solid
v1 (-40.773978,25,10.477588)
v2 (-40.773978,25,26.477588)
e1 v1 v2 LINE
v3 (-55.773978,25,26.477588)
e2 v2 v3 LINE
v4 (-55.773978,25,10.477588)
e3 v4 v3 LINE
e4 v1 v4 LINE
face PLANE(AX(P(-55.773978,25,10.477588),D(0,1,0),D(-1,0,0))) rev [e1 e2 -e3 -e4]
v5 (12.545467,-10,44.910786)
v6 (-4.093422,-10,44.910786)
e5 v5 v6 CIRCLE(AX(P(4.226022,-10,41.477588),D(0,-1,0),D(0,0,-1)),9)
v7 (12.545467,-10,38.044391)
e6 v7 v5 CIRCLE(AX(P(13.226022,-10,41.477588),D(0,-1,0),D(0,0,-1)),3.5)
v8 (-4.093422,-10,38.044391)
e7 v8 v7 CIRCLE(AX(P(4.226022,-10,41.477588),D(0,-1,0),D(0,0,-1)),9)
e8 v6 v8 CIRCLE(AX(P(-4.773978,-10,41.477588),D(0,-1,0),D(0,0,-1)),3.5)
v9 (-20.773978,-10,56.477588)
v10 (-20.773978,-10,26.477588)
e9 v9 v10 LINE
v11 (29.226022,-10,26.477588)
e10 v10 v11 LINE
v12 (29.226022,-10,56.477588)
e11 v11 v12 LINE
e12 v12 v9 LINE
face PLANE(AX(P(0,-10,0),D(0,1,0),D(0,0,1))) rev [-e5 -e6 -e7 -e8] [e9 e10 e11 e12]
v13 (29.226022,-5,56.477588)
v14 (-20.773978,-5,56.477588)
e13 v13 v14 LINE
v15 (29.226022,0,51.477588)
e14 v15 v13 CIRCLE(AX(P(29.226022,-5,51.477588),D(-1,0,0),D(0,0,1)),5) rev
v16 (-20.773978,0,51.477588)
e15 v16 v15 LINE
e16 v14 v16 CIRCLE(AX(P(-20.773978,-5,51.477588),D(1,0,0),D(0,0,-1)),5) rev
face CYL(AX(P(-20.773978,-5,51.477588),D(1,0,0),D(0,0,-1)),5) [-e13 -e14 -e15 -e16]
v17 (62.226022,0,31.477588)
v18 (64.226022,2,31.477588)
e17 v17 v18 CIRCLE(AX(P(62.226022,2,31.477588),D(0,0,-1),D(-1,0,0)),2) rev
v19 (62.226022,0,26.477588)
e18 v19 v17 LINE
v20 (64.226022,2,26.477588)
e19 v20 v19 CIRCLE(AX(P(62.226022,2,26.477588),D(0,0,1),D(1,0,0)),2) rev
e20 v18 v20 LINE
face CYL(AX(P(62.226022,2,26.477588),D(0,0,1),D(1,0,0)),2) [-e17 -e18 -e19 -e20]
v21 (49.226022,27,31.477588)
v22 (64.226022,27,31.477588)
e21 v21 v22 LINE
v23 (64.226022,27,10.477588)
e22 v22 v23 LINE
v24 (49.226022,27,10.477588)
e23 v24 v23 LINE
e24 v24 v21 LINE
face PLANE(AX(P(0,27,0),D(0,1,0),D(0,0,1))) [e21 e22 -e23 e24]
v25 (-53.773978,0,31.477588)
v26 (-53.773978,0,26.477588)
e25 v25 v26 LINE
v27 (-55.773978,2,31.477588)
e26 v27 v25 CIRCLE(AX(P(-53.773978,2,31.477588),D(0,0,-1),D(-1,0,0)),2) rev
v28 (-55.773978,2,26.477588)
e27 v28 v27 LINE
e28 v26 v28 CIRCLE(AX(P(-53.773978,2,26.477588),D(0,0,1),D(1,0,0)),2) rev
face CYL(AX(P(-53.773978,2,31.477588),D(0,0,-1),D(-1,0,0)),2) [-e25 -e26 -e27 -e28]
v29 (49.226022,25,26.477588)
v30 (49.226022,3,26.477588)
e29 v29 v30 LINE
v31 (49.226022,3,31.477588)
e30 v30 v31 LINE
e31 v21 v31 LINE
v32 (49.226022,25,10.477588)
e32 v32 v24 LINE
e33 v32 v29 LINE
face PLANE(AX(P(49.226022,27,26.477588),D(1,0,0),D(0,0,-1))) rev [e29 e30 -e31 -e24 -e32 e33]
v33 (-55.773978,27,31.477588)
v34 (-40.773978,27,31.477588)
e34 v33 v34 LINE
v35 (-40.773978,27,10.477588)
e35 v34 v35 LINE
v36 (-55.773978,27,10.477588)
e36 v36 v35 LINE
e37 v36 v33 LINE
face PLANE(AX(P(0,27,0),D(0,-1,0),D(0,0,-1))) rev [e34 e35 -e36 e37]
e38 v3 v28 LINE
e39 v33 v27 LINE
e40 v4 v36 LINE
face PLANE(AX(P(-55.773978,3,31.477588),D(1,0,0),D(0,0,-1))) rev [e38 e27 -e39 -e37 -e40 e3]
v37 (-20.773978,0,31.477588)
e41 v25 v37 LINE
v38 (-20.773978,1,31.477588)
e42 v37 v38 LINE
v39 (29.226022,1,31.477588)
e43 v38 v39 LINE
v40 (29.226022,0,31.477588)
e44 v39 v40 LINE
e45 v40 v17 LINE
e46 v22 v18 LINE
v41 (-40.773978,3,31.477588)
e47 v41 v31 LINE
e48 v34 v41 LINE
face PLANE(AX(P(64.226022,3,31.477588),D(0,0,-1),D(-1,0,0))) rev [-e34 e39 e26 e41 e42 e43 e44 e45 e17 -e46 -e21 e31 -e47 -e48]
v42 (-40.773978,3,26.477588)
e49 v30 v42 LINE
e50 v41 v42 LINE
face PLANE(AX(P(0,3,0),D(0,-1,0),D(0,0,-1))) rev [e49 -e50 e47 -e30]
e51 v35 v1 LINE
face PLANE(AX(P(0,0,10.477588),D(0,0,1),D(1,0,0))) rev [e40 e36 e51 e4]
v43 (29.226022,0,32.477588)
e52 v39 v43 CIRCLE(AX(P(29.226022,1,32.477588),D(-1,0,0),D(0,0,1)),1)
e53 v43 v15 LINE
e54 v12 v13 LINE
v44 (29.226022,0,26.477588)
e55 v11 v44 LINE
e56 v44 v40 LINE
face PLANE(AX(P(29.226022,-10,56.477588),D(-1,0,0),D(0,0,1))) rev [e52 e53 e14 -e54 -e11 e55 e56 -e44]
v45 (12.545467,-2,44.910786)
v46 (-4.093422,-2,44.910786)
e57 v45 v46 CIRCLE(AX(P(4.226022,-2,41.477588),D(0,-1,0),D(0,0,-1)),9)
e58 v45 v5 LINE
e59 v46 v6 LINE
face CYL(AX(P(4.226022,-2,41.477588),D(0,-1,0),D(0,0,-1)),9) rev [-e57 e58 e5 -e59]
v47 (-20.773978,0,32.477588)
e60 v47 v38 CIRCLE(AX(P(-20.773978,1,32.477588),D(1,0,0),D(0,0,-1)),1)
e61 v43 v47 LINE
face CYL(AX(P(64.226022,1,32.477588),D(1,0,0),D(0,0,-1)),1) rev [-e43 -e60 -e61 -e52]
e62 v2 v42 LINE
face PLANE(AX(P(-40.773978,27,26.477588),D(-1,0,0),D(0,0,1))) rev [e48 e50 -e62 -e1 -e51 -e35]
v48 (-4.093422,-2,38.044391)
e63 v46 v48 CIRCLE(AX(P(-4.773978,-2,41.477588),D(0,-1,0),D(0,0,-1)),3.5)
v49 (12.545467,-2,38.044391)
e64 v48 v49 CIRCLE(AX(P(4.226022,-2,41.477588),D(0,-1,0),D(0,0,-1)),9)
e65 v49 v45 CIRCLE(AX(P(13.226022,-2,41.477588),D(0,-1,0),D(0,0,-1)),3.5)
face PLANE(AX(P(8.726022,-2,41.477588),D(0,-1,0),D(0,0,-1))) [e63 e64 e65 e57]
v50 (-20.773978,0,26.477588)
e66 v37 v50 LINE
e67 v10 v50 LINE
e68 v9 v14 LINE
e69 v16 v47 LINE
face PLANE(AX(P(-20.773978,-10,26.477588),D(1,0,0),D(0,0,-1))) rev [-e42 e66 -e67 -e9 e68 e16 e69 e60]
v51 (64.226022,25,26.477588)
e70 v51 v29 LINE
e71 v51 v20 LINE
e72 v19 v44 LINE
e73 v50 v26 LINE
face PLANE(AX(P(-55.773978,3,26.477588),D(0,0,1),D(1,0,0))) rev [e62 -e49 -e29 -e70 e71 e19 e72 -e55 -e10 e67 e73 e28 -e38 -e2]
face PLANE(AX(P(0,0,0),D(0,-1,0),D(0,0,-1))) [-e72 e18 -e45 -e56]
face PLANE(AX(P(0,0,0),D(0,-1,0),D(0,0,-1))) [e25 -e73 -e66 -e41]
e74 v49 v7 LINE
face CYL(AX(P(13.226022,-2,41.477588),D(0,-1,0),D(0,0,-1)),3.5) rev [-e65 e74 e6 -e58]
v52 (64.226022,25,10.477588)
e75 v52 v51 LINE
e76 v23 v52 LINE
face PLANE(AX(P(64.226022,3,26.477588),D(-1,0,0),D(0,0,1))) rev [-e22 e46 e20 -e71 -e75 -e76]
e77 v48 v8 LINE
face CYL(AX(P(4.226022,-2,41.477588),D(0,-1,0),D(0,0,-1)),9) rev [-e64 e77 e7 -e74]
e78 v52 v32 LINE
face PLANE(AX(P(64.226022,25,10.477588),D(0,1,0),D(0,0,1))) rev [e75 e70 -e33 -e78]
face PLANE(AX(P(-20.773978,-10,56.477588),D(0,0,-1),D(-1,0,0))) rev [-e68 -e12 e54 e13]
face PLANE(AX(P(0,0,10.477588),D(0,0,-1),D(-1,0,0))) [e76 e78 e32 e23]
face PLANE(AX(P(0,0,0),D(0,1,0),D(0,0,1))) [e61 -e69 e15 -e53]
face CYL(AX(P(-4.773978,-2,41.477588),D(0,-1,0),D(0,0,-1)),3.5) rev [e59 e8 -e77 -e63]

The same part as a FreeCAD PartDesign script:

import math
import FreeCAD as App
import Part
import Sketcher

V = App.Vector
Q = App.Units.Quantity


def edges_at(feature, points):
    """Names of the edges that pass closest to the given points."""
    edges = feature.Shape.Edges
    near = lambda p: min(range(len(edges)), key=lambda i: edges[i].distToShape(Part.Vertex(*p))[0])
    return sorted({f"Edge{near(p) + 1}" for p in points})

doc = App.newDocument("Part")
body = doc.addObject("PartDesign::Body", "Body")

sketch1 = doc.addObject("Sketcher::SketchObject", "Sketch")
body.addObject(sketch1)
sketch1.AttachmentSupport = (doc.XZ_Plane, [""])
sketch1.MapMode = "FlatFace"
sketch1.addGeometry(Part.LineSegment(V(-56, 26, 0), V(-56, 31, 0)), False)
sketch1.addGeometry(Part.LineSegment(V(-56, 31, 0), V(64, 31, 0)), False)
sketch1.addGeometry(Part.LineSegment(V(64, 31, 0), V(64, 26, 0)), False)
sketch1.addGeometry(Part.LineSegment(V(64, 26, 0), V(-56, 26, 0)), False)
sketch1.addConstraint(Sketcher.Constraint("Coincident", 0, 2, 1, 1))
sketch1.addConstraint(Sketcher.Constraint("Coincident", 1, 2, 2, 1))
sketch1.addConstraint(Sketcher.Constraint("Coincident", 2, 2, 3, 1))
sketch1.addConstraint(Sketcher.Constraint("Coincident", 3, 2, 0, 1))
sketch1.addConstraint(Sketcher.Constraint("Vertical", 0))
sketch1.addConstraint(Sketcher.Constraint("Horizontal", 1))
sketch1.addConstraint(Sketcher.Constraint("Vertical", 2))
sketch1.addConstraint(Sketcher.Constraint("Horizontal", 3))
sketch1.addConstraint(Sketcher.Constraint("DistanceX", 1, 1, 1, 2, Q("120 mm")))
sketch1.addConstraint(Sketcher.Constraint("DistanceY", 0, 1, 0, 2, Q("5 mm")))
sketch1.addConstraint(Sketcher.Constraint("DistanceY", -1, 1, 0, 2, Q("31.477588 mm")))
sketch1.addConstraint(Sketcher.Constraint("DistanceX", 0, 2, -1, 1, Q("55.773978 mm")))
pad1 = doc.addObject("PartDesign::Pad", "Pad")
body.addObject(pad1)
pad1.Profile = sketch1
pad1.Length = 3
pad1.Reversed = True

sketch2 = doc.addObject("Sketcher::SketchObject", "Sketch001")
body.addObject(sketch2)
sketch2.AttachmentSupport = (doc.XZ_Plane, [""])
sketch2.MapMode = "FlatFace"
sketch2.AttachmentOffset = App.Placement(V(0, 0, -3), App.Rotation())
sketch2.addGeometry(Part.LineSegment(V(-56, 26, 0), V(-56, 31, 0)), False)
sketch2.addGeometry(Part.LineSegment(V(-56, 31, 0), V(-41, 31, 0)), False)
sketch2.addGeometry(Part.LineSegment(V(-41, 31, 0), V(-41, 26, 0)), False)
sketch2.addGeometry(Part.LineSegment(V(-41, 26, 0), V(-56, 26, 0)), False)
sketch2.addGeometry(Part.LineSegment(V(49, 26, 0), V(49, 31, 0)), False)
sketch2.addGeometry(Part.LineSegment(V(49, 31, 0), V(64, 31, 0)), False)
sketch2.addGeometry(Part.LineSegment(V(64, 31, 0), V(64, 26, 0)), False)
sketch2.addGeometry(Part.LineSegment(V(64, 26, 0), V(49, 26, 0)), False)
sketch2.addConstraint(Sketcher.Constraint("Coincident", 0, 2, 1, 1))
sketch2.addConstraint(Sketcher.Constraint("Coincident", 1, 2, 2, 1))
sketch2.addConstraint(Sketcher.Constraint("Coincident", 2, 2, 3, 1))
sketch2.addConstraint(Sketcher.Constraint("Coincident", 3, 2, 0, 1))
sketch2.addConstraint(Sketcher.Constraint("Coincident", 4, 2, 5, 1))
sketch2.addConstraint(Sketcher.Constraint("Coincident", 5, 2, 6, 1))
sketch2.addConstraint(Sketcher.Constraint("Coincident", 6, 2, 7, 1))
sketch2.addConstraint(Sketcher.Constraint("Coincident", 7, 2, 4, 1))
sketch2.addConstraint(Sketcher.Constraint("Vertical", 0))
sketch2.addConstraint(Sketcher.Constraint("Horizontal", 1))
sketch2.addConstraint(Sketcher.Constraint("Vertical", 2))
sketch2.addConstraint(Sketcher.Constraint("Horizontal", 3))
sketch2.addConstraint(Sketcher.Constraint("Vertical", 4))
sketch2.addConstraint(Sketcher.Constraint("Horizontal", 5))
sketch2.addConstraint(Sketcher.Constraint("Vertical", 6))
sketch2.addConstraint(Sketcher.Constraint("Horizontal", 7))
sketch2.addConstraint(Sketcher.Constraint("Horizontal", 1, 2, 4, 2))
sketch2.addConstraint(Sketcher.Constraint("Horizontal", 3, 2, 6, 2))
sketch2.addConstraint(Sketcher.Constraint("Equal", 3, 5))
sketch2.addConstraint(Sketcher.Constraint("DistanceX", 1, 1, 1, 2, Q("15 mm")))
sketch2.addConstraint(Sketcher.Constraint("DistanceY", 0, 1, 0, 2, Q("5 mm")))
sketch2.addConstraint(Sketcher.Constraint("DistanceX", 1, 2, 4, 2, Q("90 mm")))
sketch2.addConstraint(Sketcher.Constraint("DistanceY", -1, 1, 0, 2, Q("31.477588 mm")))
sketch2.addConstraint(Sketcher.Constraint("DistanceX", 0, 2, -1, 1, Q("55.773978 mm")))
pad2 = doc.addObject("PartDesign::Pad", "Pad001")
body.addObject(pad2)
pad2.Profile = sketch2
pad2.Length = 24
pad2.Reversed = True

sketch3 = doc.addObject("Sketcher::SketchObject", "Sketch002")
body.addObject(sketch3)
sketch3.AttachmentSupport = (doc.XZ_Plane, [""])
sketch3.MapMode = "FlatFace"
sketch3.addGeometry(Part.LineSegment(V(-21, 56, 0), V(-21, 26, 0)), False)
sketch3.addGeometry(Part.LineSegment(V(-21, 26, 0), V(29, 26, 0)), False)
sketch3.addGeometry(Part.LineSegment(V(29, 26, 0), V(29, 56, 0)), False)
sketch3.addGeometry(Part.LineSegment(V(29, 56, 0), V(-21, 56, 0)), False)
sketch3.addConstraint(Sketcher.Constraint("Coincident", 0, 2, 1, 1))
sketch3.addConstraint(Sketcher.Constraint("Coincident", 1, 2, 2, 1))
sketch3.addConstraint(Sketcher.Constraint("Coincident", 2, 2, 3, 1))
sketch3.addConstraint(Sketcher.Constraint("Coincident", 3, 2, 0, 1))
sketch3.addConstraint(Sketcher.Constraint("Vertical", 0))
sketch3.addConstraint(Sketcher.Constraint("Horizontal", 1))
sketch3.addConstraint(Sketcher.Constraint("Vertical", 2))
sketch3.addConstraint(Sketcher.Constraint("Horizontal", 3))
sketch3.addConstraint(Sketcher.Constraint("DistanceX", 1, 1, 1, 2, Q("50 mm")))
sketch3.addConstraint(Sketcher.Constraint("DistanceY", 0, 2, 0, 1, Q("30 mm")))
sketch3.addConstraint(Sketcher.Constraint("DistanceY", -1, 1, 0, 2, Q("26.477588 mm")))
sketch3.addConstraint(Sketcher.Constraint("DistanceX", 0, 2, -1, 1, Q("20.773978 mm")))
pad3 = doc.addObject("PartDesign::Pad", "Pad002")
body.addObject(pad3)
pad3.Profile = sketch3
pad3.Length = 10
doc.recompute()

fillet = doc.addObject("PartDesign::Fillet", "Fillet")
body.addObject(fillet)
fillet.Base = (pad3, edges_at(pad3, [(4.226, 0, 31.478)]))
fillet.Radius = 1
doc.recompute()

fillet2 = doc.addObject("PartDesign::Fillet", "Fillet001")
body.addObject(fillet2)
fillet2.Base = (fillet, edges_at(fillet, [(4.226, 0, 56.478)]))
fillet2.Radius = 5
doc.recompute()

fillet3 = doc.addObject("PartDesign::Fillet", "Fillet002")
body.addObject(fillet3)
fillet3.Base = (fillet2, edges_at(fillet2, [(64.226, 0, 28.978)]))
fillet3.Radius = 2
doc.recompute()

fillet4 = doc.addObject("PartDesign::Fillet", "Fillet003")
body.addObject(fillet4)
fillet4.Base = (fillet3, edges_at(fillet3, [(-55.774, 0, 28.978)]))
fillet4.Radius = 2

sketch4 = doc.addObject("Sketcher::SketchObject", "Sketch003")
body.addObject(sketch4)
sketch4.AttachmentSupport = (doc.XZ_Plane, [""])
sketch4.MapMode = "FlatFace"
sketch4.AttachmentOffset = App.Placement(V(0, 0, 10), App.Rotation())
sketch4.addGeometry(Part.ArcOfCircle(Part.Circle(V(4.2, 41.5, 0), V(0, 0, 1), 9), math.radians(-158), math.radians(-22)), False)
sketch4.addGeometry(Part.ArcOfCircle(Part.Circle(V(13.2, 41.5, 0), V(0, 0, 1), 3.5), math.radians(-101), math.radians(101)), False)
sketch4.addGeometry(Part.ArcOfCircle(Part.Circle(V(4.2, 41.5, 0), V(0, 0, 1), 9), math.radians(22), math.radians(158)), False)
sketch4.addGeometry(Part.ArcOfCircle(Part.Circle(V(-4.8, 41.5, 0), V(0, 0, 1), 3.5), math.radians(79), math.radians(281)), False)
sketch4.addConstraint(Sketcher.Constraint("Coincident", 0, 2, 1, 1))
sketch4.addConstraint(Sketcher.Constraint("Coincident", 1, 2, 2, 1))
sketch4.addConstraint(Sketcher.Constraint("Coincident", 2, 2, 3, 1))
sketch4.addConstraint(Sketcher.Constraint("Coincident", 3, 2, 0, 1))
sketch4.addConstraint(Sketcher.Constraint("Coincident", 2, 3, 0, 3))
sketch4.addConstraint(Sketcher.Constraint("Equal", 0, 2))
sketch4.addConstraint(Sketcher.Constraint("Equal", 1, 3))
sketch4.addConstraint(Sketcher.Constraint("Horizontal", 0, 3, 1, 3))
sketch4.addConstraint(Sketcher.Constraint("Horizontal", 2, 3, 3, 3))
sketch4.addConstraint(Sketcher.Constraint("Horizontal", 1, 2, 2, 2))
sketch4.addConstraint(Sketcher.Constraint("Radius", 0, Q("9 mm")))
sketch4.addConstraint(Sketcher.Constraint("Radius", 1, Q("3.5 mm")))
sketch4.addConstraint(Sketcher.Constraint("DistanceX", 0, 3, 1, 3, Q("9 mm")))
sketch4.addConstraint(Sketcher.Constraint("DistanceY", -1, 1, 0, 3, Q("41.477588 mm")))
sketch4.addConstraint(Sketcher.Constraint("DistanceX", -1, 1, 0, 3, Q("4.226022 mm")))
pocket1 = doc.addObject("PartDesign::Pocket", "Pocket")
body.addObject(pocket1)
pocket1.Profile = sketch4
pocket1.Length = 8

sketch5 = doc.addObject("Sketcher::SketchObject", "Sketch004")
body.addObject(sketch5)
sketch5.AttachmentSupport = (doc.XY_Plane, [""])
sketch5.MapMode = "FlatFace"
sketch5.AttachmentOffset = App.Placement(V(0, 0, 26.477588), App.Rotation())
sketch5.addGeometry(Part.LineSegment(V(64.2, 27, 0), V(64.2, 25, 0)), False)
sketch5.addGeometry(Part.LineSegment(V(64.2, 25, 0), V(49.2, 25, 0)), False)
sketch5.addGeometry(Part.LineSegment(V(49.2, 25, 0), V(49.2, 27, 0)), False)
sketch5.addGeometry(Part.LineSegment(V(49.2, 27, 0), V(64.2, 27, 0)), False)
sketch5.addGeometry(Part.LineSegment(V(-40.8, 27, 0), V(-40.8, 25, 0)), False)
sketch5.addGeometry(Part.LineSegment(V(-40.8, 25, 0), V(-55.8, 25, 0)), False)
sketch5.addGeometry(Part.LineSegment(V(-55.8, 25, 0), V(-55.8, 27, 0)), False)
sketch5.addGeometry(Part.LineSegment(V(-55.8, 27, 0), V(-40.8, 27, 0)), False)
sketch5.addConstraint(Sketcher.Constraint("Coincident", 0, 2, 1, 1))
sketch5.addConstraint(Sketcher.Constraint("Coincident", 1, 2, 2, 1))
sketch5.addConstraint(Sketcher.Constraint("Coincident", 2, 2, 3, 1))
sketch5.addConstraint(Sketcher.Constraint("Coincident", 3, 2, 0, 1))
sketch5.addConstraint(Sketcher.Constraint("Coincident", 4, 2, 5, 1))
sketch5.addConstraint(Sketcher.Constraint("Coincident", 5, 2, 6, 1))
sketch5.addConstraint(Sketcher.Constraint("Coincident", 6, 2, 7, 1))
sketch5.addConstraint(Sketcher.Constraint("Coincident", 7, 2, 4, 1))
sketch5.addConstraint(Sketcher.Constraint("Vertical", 0))
sketch5.addConstraint(Sketcher.Constraint("Horizontal", 1))
sketch5.addConstraint(Sketcher.Constraint("Vertical", 2))
sketch5.addConstraint(Sketcher.Constraint("Horizontal", 3))
sketch5.addConstraint(Sketcher.Constraint("Vertical", 4))
sketch5.addConstraint(Sketcher.Constraint("Horizontal", 5))
sketch5.addConstraint(Sketcher.Constraint("Vertical", 6))
sketch5.addConstraint(Sketcher.Constraint("Horizontal", 7))
sketch5.addConstraint(Sketcher.Constraint("Horizontal", 1, 2, 4, 2))
sketch5.addConstraint(Sketcher.Constraint("Horizontal", 3, 2, 6, 2))
sketch5.addConstraint(Sketcher.Constraint("Equal", 3, 5))
sketch5.addConstraint(Sketcher.Constraint("DistanceX", 1, 2, 1, 1, Q("15 mm")))
sketch5.addConstraint(Sketcher.Constraint("DistanceY", 0, 2, 0, 1, Q("2 mm")))
sketch5.addConstraint(Sketcher.Constraint("DistanceY", -1, 1, 0, 2, Q("25 mm")))
sketch5.addConstraint(Sketcher.Constraint("DistanceX", 4, 2, 1, 2, Q("90 mm")))
sketch5.addConstraint(Sketcher.Constraint("DistanceX", -1, 1, 0, 2, Q("64.226022 mm")))
pad4 = doc.addObject("PartDesign::Pad", "Pad003")
body.addObject(pad4)
pad4.Profile = sketch5
pad4.Length = 16
pad4.Reversed = True

doc.recompute()
